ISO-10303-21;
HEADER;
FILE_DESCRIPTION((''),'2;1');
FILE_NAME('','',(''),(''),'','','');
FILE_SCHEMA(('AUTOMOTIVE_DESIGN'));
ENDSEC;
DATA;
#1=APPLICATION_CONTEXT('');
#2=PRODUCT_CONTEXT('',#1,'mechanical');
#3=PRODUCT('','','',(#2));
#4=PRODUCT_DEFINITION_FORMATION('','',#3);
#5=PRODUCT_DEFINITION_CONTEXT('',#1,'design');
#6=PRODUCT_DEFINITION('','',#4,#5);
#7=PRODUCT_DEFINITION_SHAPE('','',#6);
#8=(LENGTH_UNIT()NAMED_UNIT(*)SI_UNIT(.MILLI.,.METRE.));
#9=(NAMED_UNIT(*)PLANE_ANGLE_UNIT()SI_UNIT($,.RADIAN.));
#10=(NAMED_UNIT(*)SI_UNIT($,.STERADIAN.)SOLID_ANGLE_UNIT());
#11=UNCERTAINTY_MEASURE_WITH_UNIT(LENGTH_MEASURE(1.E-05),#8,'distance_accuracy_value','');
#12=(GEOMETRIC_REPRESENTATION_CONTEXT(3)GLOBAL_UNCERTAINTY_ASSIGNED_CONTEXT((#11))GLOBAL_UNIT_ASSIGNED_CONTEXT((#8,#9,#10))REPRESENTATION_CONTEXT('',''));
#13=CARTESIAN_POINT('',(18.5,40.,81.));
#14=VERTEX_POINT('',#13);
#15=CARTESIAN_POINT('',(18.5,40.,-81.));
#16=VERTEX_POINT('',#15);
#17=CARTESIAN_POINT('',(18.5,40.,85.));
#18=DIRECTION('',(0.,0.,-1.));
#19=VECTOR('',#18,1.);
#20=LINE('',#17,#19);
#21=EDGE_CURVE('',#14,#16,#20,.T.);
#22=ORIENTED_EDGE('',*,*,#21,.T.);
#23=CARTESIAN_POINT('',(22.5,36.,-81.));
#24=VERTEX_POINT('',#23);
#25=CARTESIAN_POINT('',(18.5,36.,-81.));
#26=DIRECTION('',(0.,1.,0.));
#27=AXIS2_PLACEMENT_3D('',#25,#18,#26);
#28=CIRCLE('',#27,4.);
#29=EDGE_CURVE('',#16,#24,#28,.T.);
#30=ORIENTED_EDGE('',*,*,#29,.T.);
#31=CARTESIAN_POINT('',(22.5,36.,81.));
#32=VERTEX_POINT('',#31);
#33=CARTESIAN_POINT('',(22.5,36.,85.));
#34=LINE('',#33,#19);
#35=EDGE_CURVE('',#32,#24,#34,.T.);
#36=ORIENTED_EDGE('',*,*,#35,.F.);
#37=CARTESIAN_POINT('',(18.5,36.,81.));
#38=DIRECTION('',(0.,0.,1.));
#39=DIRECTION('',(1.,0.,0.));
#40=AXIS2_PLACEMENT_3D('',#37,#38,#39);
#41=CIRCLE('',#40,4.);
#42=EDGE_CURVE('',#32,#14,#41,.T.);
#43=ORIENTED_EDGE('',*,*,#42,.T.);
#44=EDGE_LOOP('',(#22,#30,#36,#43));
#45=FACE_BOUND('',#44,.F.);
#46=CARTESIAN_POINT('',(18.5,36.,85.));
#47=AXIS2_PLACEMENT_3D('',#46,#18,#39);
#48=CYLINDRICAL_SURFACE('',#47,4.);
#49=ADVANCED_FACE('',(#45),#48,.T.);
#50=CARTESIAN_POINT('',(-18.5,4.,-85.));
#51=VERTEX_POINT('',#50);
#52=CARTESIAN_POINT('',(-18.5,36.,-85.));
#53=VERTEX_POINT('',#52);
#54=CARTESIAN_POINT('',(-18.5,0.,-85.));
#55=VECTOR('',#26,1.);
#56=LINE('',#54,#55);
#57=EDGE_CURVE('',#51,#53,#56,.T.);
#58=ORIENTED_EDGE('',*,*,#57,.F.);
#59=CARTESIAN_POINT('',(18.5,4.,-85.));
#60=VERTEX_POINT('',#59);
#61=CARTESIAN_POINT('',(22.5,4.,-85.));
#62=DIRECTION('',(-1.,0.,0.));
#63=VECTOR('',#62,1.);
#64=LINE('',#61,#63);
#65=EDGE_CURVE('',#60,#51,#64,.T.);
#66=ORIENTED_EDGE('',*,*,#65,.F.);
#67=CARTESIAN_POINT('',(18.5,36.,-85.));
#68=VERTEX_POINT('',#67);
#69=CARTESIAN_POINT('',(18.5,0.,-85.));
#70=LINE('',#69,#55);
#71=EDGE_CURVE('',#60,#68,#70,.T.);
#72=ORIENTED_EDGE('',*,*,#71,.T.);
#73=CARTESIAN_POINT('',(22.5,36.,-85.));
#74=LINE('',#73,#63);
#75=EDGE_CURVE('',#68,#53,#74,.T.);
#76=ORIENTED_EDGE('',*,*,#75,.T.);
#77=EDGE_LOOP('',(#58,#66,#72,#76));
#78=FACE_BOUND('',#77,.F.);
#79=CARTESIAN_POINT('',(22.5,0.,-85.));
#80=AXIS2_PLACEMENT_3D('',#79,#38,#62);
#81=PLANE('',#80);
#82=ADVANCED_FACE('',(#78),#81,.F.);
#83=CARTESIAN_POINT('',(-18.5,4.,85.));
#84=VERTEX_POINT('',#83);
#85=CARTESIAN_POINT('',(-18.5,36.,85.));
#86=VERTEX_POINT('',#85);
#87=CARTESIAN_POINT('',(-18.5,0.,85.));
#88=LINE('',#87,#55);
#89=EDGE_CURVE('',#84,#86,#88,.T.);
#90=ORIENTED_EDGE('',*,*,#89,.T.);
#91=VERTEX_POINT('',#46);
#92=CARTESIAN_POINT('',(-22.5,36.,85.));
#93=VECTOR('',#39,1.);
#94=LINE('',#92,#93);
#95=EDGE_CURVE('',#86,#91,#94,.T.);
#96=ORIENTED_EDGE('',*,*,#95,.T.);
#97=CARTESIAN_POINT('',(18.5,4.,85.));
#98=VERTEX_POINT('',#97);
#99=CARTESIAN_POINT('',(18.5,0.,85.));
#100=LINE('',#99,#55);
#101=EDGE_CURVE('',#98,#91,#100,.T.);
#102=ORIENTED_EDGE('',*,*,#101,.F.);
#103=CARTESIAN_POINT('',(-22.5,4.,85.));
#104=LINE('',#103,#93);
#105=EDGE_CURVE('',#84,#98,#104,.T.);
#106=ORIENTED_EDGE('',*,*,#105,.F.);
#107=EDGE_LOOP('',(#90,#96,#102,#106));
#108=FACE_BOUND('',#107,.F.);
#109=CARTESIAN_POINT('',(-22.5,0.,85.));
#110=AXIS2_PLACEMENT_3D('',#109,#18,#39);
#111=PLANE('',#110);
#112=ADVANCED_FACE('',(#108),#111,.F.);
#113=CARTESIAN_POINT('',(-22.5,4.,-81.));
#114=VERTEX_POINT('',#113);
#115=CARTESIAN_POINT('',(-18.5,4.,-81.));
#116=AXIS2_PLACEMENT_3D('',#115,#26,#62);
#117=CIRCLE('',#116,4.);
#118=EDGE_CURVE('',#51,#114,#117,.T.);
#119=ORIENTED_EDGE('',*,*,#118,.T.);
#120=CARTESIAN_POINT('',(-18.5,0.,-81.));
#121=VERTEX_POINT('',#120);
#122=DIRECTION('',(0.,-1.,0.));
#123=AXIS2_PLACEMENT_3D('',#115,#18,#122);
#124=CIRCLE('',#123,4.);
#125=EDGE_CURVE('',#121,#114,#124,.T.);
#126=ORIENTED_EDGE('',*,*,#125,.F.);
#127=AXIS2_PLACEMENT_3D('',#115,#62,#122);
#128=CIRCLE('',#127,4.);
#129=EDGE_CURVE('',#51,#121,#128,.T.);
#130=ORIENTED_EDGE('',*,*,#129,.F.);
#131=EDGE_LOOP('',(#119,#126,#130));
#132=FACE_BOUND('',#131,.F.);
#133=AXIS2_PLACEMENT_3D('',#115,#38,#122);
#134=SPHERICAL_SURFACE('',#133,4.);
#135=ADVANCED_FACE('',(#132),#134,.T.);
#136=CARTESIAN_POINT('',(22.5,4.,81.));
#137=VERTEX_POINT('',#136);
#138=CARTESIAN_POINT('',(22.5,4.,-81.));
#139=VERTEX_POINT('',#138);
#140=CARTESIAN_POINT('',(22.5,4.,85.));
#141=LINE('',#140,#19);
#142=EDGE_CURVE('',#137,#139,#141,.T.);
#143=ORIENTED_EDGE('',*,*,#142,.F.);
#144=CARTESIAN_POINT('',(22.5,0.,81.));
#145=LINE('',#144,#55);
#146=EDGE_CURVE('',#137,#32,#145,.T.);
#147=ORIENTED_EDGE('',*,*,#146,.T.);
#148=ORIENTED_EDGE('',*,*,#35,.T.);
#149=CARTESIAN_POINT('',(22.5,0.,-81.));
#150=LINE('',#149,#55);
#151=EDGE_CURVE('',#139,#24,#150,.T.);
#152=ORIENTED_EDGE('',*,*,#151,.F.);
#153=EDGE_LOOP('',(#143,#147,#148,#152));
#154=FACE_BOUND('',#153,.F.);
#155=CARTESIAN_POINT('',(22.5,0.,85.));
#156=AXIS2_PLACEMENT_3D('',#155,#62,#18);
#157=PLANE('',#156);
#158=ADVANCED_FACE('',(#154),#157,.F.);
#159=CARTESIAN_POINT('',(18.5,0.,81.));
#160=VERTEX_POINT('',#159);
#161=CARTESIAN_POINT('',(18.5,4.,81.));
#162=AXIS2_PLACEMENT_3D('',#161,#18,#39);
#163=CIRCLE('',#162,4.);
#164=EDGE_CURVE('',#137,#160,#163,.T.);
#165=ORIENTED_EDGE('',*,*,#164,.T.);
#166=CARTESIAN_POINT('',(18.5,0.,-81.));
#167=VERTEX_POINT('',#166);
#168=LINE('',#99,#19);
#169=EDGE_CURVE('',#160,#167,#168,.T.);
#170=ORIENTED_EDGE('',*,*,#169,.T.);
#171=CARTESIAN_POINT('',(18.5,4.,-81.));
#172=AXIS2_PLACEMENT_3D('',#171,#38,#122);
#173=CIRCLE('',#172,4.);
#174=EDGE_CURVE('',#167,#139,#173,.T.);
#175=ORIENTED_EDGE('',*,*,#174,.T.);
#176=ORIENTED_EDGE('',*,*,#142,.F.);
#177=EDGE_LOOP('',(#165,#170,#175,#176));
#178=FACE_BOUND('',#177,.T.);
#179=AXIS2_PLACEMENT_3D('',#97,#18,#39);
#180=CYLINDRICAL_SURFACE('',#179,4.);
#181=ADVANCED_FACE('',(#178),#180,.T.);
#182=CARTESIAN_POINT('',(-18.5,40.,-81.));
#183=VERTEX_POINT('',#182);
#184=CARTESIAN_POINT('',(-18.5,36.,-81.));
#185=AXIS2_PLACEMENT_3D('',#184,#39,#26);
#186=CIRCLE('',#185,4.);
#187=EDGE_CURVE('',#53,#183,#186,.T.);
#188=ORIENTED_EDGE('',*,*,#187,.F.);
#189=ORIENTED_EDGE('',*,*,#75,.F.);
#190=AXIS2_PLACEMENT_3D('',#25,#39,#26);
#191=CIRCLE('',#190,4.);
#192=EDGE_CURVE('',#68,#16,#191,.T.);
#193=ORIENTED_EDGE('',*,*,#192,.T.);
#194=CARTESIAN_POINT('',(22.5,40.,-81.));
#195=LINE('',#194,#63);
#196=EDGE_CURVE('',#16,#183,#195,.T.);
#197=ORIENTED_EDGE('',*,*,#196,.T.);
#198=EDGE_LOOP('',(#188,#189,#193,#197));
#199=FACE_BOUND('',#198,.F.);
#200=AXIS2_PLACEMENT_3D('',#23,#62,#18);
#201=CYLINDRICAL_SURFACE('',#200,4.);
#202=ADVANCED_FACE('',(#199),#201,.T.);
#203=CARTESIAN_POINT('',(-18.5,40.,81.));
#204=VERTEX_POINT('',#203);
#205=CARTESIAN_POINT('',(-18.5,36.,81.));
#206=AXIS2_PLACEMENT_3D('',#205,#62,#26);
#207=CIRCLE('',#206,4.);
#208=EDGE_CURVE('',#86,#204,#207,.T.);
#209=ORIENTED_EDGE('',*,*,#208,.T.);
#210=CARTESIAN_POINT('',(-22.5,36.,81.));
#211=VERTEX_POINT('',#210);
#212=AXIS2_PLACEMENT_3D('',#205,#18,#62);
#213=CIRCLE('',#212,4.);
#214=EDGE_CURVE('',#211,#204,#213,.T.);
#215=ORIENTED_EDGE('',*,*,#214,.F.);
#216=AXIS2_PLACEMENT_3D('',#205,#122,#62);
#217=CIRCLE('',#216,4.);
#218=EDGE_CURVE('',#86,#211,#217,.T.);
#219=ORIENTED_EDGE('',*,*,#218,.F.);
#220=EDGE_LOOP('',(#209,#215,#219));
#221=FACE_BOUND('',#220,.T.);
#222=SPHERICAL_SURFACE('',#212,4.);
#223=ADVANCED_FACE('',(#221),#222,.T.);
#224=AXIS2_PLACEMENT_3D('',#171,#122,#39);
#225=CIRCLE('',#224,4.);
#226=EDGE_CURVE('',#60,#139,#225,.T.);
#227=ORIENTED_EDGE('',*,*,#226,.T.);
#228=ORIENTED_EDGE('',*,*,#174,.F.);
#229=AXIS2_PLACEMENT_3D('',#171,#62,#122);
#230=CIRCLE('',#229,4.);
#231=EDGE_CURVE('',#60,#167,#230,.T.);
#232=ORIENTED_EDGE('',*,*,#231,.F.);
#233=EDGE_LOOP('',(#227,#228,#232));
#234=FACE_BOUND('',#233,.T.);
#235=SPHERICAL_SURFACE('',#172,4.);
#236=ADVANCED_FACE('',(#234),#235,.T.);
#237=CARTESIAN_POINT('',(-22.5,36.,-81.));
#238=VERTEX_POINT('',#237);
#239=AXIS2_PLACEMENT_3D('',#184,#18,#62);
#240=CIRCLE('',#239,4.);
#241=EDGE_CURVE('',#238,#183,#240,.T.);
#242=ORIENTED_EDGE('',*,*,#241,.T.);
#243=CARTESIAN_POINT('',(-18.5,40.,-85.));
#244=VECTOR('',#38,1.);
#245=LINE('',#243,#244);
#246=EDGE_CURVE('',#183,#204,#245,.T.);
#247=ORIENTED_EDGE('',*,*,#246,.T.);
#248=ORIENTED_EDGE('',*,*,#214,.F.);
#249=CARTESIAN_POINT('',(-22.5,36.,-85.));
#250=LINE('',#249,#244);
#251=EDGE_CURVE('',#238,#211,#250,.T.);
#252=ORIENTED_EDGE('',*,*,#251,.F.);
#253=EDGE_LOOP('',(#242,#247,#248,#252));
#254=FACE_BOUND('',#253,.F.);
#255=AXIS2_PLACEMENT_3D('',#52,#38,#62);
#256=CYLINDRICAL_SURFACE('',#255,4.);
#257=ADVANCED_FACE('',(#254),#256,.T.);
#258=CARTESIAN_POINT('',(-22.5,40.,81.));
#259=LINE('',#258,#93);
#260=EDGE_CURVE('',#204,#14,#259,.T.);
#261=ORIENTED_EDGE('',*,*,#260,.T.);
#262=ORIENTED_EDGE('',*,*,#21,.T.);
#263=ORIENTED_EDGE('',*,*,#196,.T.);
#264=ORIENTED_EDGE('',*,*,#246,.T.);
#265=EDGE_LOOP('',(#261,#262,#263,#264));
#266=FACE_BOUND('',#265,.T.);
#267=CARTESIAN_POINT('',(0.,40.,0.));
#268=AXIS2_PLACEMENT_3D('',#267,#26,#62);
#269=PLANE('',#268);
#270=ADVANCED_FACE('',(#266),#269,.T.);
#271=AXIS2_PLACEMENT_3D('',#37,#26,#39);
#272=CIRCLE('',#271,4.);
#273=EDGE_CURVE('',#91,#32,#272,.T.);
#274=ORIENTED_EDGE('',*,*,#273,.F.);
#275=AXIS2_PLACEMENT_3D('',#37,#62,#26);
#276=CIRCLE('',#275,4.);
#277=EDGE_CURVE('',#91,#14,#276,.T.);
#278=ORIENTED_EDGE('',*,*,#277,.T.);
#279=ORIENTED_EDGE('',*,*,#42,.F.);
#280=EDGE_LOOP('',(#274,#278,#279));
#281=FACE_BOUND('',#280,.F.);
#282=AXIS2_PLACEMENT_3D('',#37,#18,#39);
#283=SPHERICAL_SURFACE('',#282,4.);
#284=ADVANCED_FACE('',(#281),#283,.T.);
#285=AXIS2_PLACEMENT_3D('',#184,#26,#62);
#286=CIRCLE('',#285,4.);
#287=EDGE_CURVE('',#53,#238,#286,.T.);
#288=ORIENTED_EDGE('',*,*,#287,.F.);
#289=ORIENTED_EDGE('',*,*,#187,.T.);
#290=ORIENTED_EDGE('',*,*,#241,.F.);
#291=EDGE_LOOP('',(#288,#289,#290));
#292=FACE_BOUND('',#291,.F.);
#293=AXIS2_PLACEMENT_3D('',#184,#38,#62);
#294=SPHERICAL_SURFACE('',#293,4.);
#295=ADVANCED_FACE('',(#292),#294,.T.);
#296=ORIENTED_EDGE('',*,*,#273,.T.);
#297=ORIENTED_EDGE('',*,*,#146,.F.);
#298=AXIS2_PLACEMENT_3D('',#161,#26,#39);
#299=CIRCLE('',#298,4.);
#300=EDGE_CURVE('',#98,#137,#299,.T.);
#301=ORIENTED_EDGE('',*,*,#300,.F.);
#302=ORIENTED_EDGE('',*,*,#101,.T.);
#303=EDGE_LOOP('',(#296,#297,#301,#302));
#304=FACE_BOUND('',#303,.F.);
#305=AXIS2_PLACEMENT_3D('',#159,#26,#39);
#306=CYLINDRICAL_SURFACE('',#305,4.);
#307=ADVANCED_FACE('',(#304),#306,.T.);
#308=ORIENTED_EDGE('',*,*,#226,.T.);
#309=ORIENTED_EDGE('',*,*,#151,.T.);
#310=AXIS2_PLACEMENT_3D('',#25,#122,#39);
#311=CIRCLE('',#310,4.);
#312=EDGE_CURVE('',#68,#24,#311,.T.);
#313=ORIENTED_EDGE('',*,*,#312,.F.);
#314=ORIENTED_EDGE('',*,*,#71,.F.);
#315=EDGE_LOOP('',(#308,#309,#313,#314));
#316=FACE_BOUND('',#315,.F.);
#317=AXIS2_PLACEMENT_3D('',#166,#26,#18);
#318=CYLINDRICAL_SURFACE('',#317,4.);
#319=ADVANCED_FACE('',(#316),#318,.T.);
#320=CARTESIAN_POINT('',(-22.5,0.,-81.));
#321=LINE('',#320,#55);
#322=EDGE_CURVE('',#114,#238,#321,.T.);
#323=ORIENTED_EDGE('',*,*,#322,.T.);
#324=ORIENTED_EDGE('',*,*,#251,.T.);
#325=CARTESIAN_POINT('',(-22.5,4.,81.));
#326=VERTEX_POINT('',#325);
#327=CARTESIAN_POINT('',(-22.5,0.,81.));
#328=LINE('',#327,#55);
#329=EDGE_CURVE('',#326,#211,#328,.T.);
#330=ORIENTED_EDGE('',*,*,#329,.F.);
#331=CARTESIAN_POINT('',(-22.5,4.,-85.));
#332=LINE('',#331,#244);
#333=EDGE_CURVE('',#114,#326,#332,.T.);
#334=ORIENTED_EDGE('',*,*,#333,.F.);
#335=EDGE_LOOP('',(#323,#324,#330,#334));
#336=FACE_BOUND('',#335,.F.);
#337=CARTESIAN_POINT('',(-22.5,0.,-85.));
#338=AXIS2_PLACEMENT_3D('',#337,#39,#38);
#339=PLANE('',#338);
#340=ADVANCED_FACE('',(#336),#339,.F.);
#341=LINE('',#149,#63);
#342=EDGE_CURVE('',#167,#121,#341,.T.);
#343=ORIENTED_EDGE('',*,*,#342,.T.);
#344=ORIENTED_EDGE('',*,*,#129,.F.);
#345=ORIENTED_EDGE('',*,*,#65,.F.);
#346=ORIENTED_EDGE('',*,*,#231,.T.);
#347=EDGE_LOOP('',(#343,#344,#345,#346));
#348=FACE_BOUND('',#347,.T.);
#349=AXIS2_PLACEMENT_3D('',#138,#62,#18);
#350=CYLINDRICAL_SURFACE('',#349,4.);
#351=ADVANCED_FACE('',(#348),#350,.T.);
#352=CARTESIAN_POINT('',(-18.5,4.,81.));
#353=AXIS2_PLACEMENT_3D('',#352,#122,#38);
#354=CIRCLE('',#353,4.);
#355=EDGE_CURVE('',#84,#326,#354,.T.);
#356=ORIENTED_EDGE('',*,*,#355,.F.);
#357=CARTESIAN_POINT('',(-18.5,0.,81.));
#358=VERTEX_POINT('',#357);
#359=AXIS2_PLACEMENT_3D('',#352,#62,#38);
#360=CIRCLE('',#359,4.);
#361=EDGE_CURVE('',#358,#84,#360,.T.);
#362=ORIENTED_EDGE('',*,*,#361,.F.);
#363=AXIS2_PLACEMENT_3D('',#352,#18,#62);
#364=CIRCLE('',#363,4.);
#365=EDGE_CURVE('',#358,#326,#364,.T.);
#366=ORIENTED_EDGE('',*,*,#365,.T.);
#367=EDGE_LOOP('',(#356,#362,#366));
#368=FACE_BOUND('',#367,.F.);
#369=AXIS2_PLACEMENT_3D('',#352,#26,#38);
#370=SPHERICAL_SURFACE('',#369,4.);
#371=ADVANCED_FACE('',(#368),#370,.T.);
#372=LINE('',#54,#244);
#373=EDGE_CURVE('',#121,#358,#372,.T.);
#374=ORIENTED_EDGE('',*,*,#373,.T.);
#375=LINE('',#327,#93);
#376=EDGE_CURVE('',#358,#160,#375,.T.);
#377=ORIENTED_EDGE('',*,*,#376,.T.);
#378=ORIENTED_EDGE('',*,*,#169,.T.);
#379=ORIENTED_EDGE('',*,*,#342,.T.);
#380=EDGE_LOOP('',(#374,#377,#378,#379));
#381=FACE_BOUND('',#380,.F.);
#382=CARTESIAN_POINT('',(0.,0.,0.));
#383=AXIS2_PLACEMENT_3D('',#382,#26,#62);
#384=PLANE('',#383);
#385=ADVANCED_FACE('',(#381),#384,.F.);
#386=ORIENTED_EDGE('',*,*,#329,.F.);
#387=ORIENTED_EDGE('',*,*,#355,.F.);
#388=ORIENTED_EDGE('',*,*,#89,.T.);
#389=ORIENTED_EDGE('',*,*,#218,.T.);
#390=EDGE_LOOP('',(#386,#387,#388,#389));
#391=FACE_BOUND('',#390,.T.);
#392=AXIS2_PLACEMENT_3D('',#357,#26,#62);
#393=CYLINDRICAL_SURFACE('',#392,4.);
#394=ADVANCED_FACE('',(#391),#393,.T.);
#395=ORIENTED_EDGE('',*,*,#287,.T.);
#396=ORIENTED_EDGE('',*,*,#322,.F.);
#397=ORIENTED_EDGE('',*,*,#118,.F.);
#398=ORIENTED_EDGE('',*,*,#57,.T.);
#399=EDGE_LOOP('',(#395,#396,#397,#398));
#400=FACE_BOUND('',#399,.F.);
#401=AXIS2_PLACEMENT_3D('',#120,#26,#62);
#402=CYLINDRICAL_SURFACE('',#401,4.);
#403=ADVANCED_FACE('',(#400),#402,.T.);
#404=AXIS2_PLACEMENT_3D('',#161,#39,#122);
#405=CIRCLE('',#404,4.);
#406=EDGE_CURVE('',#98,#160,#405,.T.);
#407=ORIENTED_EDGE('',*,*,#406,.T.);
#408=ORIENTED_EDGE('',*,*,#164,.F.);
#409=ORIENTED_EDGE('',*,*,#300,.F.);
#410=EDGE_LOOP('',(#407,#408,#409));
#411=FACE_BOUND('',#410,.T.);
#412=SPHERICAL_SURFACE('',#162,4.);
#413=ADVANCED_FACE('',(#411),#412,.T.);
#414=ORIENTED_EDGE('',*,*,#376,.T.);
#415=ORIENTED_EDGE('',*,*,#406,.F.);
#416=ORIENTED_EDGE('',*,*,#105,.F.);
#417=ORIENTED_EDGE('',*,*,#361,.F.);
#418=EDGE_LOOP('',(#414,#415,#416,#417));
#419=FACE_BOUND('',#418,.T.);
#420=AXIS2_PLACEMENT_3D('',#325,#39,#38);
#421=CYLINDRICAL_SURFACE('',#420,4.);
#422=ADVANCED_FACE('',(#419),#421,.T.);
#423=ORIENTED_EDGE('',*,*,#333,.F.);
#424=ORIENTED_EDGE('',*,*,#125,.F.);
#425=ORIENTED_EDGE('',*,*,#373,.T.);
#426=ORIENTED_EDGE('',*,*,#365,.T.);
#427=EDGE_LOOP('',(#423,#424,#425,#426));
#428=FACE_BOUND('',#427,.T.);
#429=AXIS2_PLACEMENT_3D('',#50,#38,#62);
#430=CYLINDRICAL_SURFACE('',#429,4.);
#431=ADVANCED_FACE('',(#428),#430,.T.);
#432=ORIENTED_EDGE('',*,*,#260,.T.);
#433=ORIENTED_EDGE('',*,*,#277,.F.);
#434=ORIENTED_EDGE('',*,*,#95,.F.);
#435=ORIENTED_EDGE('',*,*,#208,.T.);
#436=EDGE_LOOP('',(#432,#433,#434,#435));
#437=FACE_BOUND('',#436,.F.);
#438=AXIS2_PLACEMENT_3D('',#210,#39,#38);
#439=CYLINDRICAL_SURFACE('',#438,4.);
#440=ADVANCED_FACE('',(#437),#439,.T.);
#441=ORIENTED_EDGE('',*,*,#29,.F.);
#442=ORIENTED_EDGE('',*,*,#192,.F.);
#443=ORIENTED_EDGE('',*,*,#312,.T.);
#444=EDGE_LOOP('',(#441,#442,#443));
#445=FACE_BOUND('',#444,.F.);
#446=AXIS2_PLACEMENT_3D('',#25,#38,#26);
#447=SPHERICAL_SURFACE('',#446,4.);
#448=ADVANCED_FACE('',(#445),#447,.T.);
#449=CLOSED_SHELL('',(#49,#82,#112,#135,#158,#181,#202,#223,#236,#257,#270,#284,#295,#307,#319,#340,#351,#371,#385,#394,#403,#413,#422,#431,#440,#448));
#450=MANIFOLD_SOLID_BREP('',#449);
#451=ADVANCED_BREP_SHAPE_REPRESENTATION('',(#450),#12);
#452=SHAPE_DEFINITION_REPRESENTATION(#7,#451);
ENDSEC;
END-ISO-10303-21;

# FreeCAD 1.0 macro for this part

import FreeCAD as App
import Part
import Sketcher
from FreeCAD import Vector

doc = App.newDocument("Part")
params = doc.addObject("Spreadsheet::Sheet", "Params")
for row, (alias, value) in enumerate([
    ("sketch1_width", "45 mm"),
    ("sketch1_height", "170 mm"),
    ("pad1_length", "40 mm"),
    ("fillet_radius", "4 mm"),
], start=1):
    params.set(f"A{row}", alias)
    params.set(f"B{row}", "=" + value)
    params.setAlias(f"B{row}", alias)

body = doc.addObject("PartDesign::Body", "Body")

# Sketch on XZ plane
sketch1 = doc.addObject("Sketcher::SketchObject", "Sketch")
body.addObject(sketch1)
sketch1.AttachmentSupport = (doc.XZ_Plane, [""])
sketch1.MapMode = "FlatFace"
sketch1.addGeometry(Part.LineSegment(Vector(-22, -85, 0), Vector(-22, 85, 0)), False)
sketch1.addGeometry(Part.LineSegment(Vector(-22, 85, 0), Vector(22, 85, 0)), False)
sketch1.addGeometry(Part.LineSegment(Vector(22, 85, 0), Vector(22, -85, 0)), False)
sketch1.addGeometry(Part.LineSegment(Vector(22, -85, 0), Vector(-22, -85, 0)), False)
sketch1.addConstraint(Sketcher.Constraint("Coincident", 0, 2, 1, 1))
sketch1.addConstraint(Sketcher.Constraint("Coincident", 1, 2, 2, 1))
sketch1.addConstraint(Sketcher.Constraint("Coincident", 2, 2, 3, 1))
sketch1.addConstraint(Sketcher.Constraint("Coincident", 3, 2, 0, 1))
sketch1.addConstraint(Sketcher.Constraint("Vertical", 0))
sketch1.addConstraint(Sketcher.Constraint("Horizontal", 1))
sketch1.addConstraint(Sketcher.Constraint("Vertical", 2))
sketch1.addConstraint(Sketcher.Constraint("Horizontal", 3))
sketch1.addConstraint(Sketcher.Constraint("Symmetric", 0, 2, 2, 2, -1, 1))
sketch1.addConstraint(Sketcher.Constraint("DistanceX", 1, 1, 1, 2, 45.0))
sketch1.addConstraint(Sketcher.Constraint("DistanceY", 0, 1, 0, 2, 170.0))
sketch1.setExpression("Constraints[9]", "Params.sketch1_width")
sketch1.setExpression("Constraints[10]", "Params.sketch1_height")
pad1 = doc.addObject("PartDesign::Pad", "Pad")
body.addObject(pad1)
pad1.Profile = sketch1
pad1.setExpression("Length", "Params.pad1_length")
pad1.Reversed = True
doc.recompute()

fillet = doc.addObject("PartDesign::Fillet", "Fillet")
body.addObject(fillet)
fillet.Base = (pad1, ["Edge1"])
fillet.UseAllEdges = True
fillet.setExpression("Radius", "Params.fillet_radius")

doc.recompute()
